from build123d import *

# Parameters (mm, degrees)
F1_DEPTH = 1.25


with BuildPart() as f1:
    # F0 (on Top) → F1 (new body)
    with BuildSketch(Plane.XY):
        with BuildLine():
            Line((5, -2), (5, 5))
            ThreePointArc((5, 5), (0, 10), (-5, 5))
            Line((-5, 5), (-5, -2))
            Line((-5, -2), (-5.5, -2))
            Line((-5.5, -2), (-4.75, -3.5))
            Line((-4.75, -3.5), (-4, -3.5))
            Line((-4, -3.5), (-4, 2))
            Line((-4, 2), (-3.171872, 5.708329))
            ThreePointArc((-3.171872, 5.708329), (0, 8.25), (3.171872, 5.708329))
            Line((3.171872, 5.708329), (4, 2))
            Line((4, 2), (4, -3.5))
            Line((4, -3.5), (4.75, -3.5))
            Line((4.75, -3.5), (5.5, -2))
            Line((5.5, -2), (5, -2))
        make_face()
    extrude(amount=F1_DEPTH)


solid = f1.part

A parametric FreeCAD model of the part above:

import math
import FreeCAD as App
import Part
import Sketcher

V = App.Vector

doc = App.newDocument("Part")
params = doc.addObject("Spreadsheet::Sheet", "Params")
for row, (alias, value) in enumerate([
    ("sketch1_radius", "5 mm"),
    ("sketch1_height", "7 mm"),
    ("sketch1_radius2", "3.25 mm"),
    ("sketch1_width", "0.5 mm"),
    ("sketch1_height2", "5.5 mm"),
    ("pad1_length", "1.25 mm"),
], start=1):
    params.set(f"A{row}", alias)
    params.set(f"B{row}", "=" + value)
    params.setAlias(f"B{row}", alias)

body = doc.addObject("PartDesign::Body", "Body")

sketch1 = body.newObject("Sketcher::SketchObject", "Sketch")
sketch1.AttachmentSupport = (doc.getObject("XY_Plane"), [""])
sketch1.MapMode = "FlatFace"
sketch1.addGeometry([
    Part.LineSegment(V(5, -2, 0), V(5, 5, 0)),
    Part.ArcOfCircle(Part.Circle(V(0, 5, 0), V(0, 0, 1), 5), math.radians(0), math.radians(180)),
    Part.LineSegment(V(-5, 5, 0), V(-5, -2, 0)),
    Part.LineSegment(V(-5, -2, 0), V(-5.5, -2, 0)),
    Part.LineSegment(V(-5.5, -2, 0), V(-4.75, -3.5, 0)),
    Part.LineSegment(V(-4.75, -3.5, 0), V(-4, -3.5, 0)),
    Part.LineSegment(V(-4, -3.5, 0), V(-4, 2, 0)),
    Part.LineSegment(V(-4, 2, 0), V(-3.171872, 5.708329, 0)),
    Part.ArcOfCircle(Part.Circle(V(0, 5, 0), V(0, 0, 1), 3.25), math.radians(12.588507), math.radians(167.411493)),
    Part.LineSegment(V(3.171872, 5.708329, 0), V(4, 2, 0)),
    Part.LineSegment(V(4, 2, 0), V(4, -3.5, 0)),
    Part.LineSegment(V(4, -3.5, 0), V(4.75, -3.5, 0)),
    Part.LineSegment(V(4.75, -3.5, 0), V(5.5, -2, 0)),
    Part.LineSegment(V(5.5, -2, 0), V(5, -2, 0)),
], False)
sketch1.addConstraint([
    Sketcher.Constraint("Tangent", 0, 2, 1, 1),
    Sketcher.Constraint("Tangent", 1, 2, 2, 1),
    Sketcher.Constraint("Coincident", 2, 2, 3, 1),
    Sketcher.Constraint("Coincident", 3, 2, 4, 1),
    Sketcher.Constraint("Coincident", 4, 2, 5, 1),
    Sketcher.Constraint("Coincident", 5, 2, 6, 1),
    Sketcher.Constraint("Coincident", 6, 2, 7, 1),
    Sketcher.Constraint("Tangent", 7, 2, 8, 2),
    Sketcher.Constraint("Tangent", 8, 1, 9, 1),
    Sketcher.Constraint("Coincident", 9, 2, 10, 1),
    Sketcher.Constraint("Coincident", 10, 2, 11, 1),
    Sketcher.Constraint("Coincident", 11, 2, 12, 1),
    Sketcher.Constraint("Coincident", 12, 2, 13, 1),
    Sketcher.Constraint("Coincident", 13, 2, 0, 1),
    Sketcher.Constraint("Vertical", 0),
    Sketcher.Constraint("Vertical", 2),
    Sketcher.Constraint("Horizontal", 3),
    Sketcher.Constraint("Horizontal", 5),
    Sketcher.Constraint("Vertical", 6),
    Sketcher.Constraint("Vertical", 10),
    Sketcher.Constraint("Horizontal", 11),
    Sketcher.Constraint("Horizontal", 13),
    Sketcher.Constraint("Coincident", 8, 3, 1, 3),
    Sketcher.Constraint("Symmetric", 7, 2, 8, 1, -2),
    Sketcher.Constraint("Symmetric", 5, 2, 10, 2, -2),
    Sketcher.Constraint("Symmetric", 3, 2, 12, 2, -2),
    Sketcher.Constraint("Equal", 5, 11),
    Sketcher.Constraint("Radius", 1, 5.0),
    Sketcher.Constraint("DistanceY", 0, 1, 0, 2, 7.0),
    Sketcher.Constraint("Radius", 8, 3.25),
    Sketcher.Constraint("DistanceX", 3, 2, 3, 1, 0.5),
    Sketcher.Constraint("DistanceY", 6, 1, 6, 2, 5.5),
    Sketcher.Constraint("DistanceY", -1, 1, 1, 3, 5.0),
    Sketcher.Constraint("DistanceX", 5, 2, -1, 1, 4.0),
    Sketcher.Constraint("DistanceY", -1, 1, 6, 2, 2.0),
    Sketcher.Constraint("DistanceX", 5, 1, 5, 2, 0.75),
])
sketch1.setExpression("Constraints[27]", "Params.sketch1_radius")
sketch1.setExpression("Constraints[28]", "Params.sketch1_height")
sketch1.setExpression("Constraints[29]", "Params.sketch1_radius2")
sketch1.setExpression("Constraints[30]", "Params.sketch1_width")
sketch1.setExpression("Constraints[31]", "Params.sketch1_height2")
pad1 = body.newObject("PartDesign::Pad", "Pad")
pad1.Profile = sketch1
pad1.setExpression("Length", "Params.pad1_length")

doc.recompute()
